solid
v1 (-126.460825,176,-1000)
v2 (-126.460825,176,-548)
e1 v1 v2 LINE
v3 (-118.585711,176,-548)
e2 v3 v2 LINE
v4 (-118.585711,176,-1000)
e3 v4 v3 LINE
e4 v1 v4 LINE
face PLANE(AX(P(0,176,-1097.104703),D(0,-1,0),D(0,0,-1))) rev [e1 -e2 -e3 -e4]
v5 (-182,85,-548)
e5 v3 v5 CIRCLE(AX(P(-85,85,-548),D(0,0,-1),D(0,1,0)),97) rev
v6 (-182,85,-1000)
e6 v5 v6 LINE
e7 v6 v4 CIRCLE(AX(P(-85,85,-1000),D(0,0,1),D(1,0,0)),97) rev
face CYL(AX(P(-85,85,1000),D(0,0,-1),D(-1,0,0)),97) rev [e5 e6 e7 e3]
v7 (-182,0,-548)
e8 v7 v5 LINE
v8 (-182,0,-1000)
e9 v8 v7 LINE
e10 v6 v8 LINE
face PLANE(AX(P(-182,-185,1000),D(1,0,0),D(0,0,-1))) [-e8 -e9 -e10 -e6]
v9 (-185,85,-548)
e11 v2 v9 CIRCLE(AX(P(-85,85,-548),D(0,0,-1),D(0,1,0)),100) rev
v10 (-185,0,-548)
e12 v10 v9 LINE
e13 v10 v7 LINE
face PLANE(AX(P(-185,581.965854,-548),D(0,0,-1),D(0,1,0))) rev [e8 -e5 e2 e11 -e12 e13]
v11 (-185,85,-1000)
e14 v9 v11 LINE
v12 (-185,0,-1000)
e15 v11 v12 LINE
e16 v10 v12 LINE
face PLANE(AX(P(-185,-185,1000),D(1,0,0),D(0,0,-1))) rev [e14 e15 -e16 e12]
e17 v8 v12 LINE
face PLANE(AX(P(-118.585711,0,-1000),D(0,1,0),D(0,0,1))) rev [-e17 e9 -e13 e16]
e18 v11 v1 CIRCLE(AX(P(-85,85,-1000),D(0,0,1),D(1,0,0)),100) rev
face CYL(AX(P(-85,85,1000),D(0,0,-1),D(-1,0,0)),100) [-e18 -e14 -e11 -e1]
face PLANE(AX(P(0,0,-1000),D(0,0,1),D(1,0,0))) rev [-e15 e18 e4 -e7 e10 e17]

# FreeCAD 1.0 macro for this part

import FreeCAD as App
import Part
import Sketcher
from FreeCAD import Vector
Q = App.Units.Quantity


def edges_at(feature, points):
    """Names of the edges that pass closest to the given points."""
    edges = feature.Shape.Edges
    near = lambda p: min(range(len(edges)), key=lambda i: edges[i].distToShape(Part.Vertex(*p))[0])
    return sorted({f"Edge{near(p) + 1}" for p in points})


def faces_at(feature, points):
    """Names of the faces that lie closest to the given points."""
    faces = feature.Shape.Faces
    near = lambda p: min(range(len(faces)), key=lambda i: faces[i].distToShape(Part.Vertex(*p))[0])
    return sorted({f"Face{near(p) + 1}" for p in points})


def add_polygon(sketch, points):
    """Adds a closed chain of lines whose ends are joined by coincident constraints."""
    first, n = sketch.GeometryCount, len(points)
    for a, b in zip(points, points[1:] + points[:1]):
        sketch.addGeometry(Part.LineSegment(App.Vector(*a, 0), App.Vector(*b, 0)), False)
    for i in range(n):
        sketch.addConstraint(Sketcher.Constraint("Coincident", first + i, 2, first + (i + 1) % n, 1))

doc = App.newDocument("Part")
params = doc.addObject("Spreadsheet::Sheet", "Params")
for row, (alias, value) in enumerate([
    ("sketch1_width", "370 mm"),
    ("pad1_length", "2000 mm"),
    ("fillet_radius", "100 mm"),
    ("thickness_wall", "3 mm"),
], start=1):
    params.set(f"A{row}", alias)
    params.set(f"B{row}", "=" + value)
    params.setAlias(f"B{row}", alias)

body = doc.addObject("PartDesign::Body", "Body")

# Sketch on XY plane
sketch1 = body.newObject("Sketcher::SketchObject", "Sketch")
sketch1.AttachmentSupport = (doc.getObject("XY_Plane"), [""])
sketch1.MapMode = "FlatFace"
add_polygon(sketch1, [(-185, 185), (-185, -185), (185, -185), (185, 185)])  # lines 0-3
sketch1.addConstraint(Sketcher.Constraint("Vertical", 0))
sketch1.addConstraint(Sketcher.Constraint("Horizontal", 1))
sketch1.addConstraint(Sketcher.Constraint("Vertical", 2))
sketch1.addConstraint(Sketcher.Constraint("Horizontal", 3))
sketch1.addConstraint(Sketcher.Constraint("Symmetric", 0, 2, 2, 2, -1, 1))
sketch1.addConstraint(Sketcher.Constraint("Equal", 3, 0))
sketch1.addConstraint(Sketcher.Constraint("DistanceX", 1, 1, 1, 2, Q("370 mm")))
sketch1.setExpression("Constraints[10]", "Params.sketch1_width")
pad1 = body.newObject("PartDesign::Pad", "Pad")
pad1.Profile = sketch1
pad1.setExpression("Length", "Params.pad1_length")
pad1.Midplane = True
doc.recompute()

fillet = body.newObject("PartDesign::Fillet", "Fillet")
fillet.Base = (pad1, edges_at(pad1, [
    (-185, 185, 0),
    (185, 185, 0),
    (185, -185, 0),
    (-185, -185, 0),
]))
fillet.setExpression("Radius", "Params.fillet_radius")
doc.recompute()

thickness = body.newObject("PartDesign::Thickness", "Thickness")
thickness.Base = (fillet, faces_at(fillet, [(0, 0, -1000)]))
thickness.setExpression("Value", "Params.thickness_wall")
thickness.Reversed = True
thickness.Join = "Intersection"

# Sketch on XY plane
sketch2 = body.newObject("Sketcher::SketchObject", "Sketch001")
sketch2.AttachmentSupport = (doc.getObject("XY_Plane"), [""])
sketch2.MapMode = "FlatFace"
sketch2.AttachmentOffset = App.Placement(Vector(0, 0, 1000), App.Rotation())
add_polygon(sketch2, [(0, 185), (0, -209.761155), (241.734798, -209.761155), (241.734798, 185)])  # lines 0-3
sketch2.addConstraint(Sketcher.Constraint("Vertical", 0))
sketch2.addConstraint(Sketcher.Constraint("Horizontal", 1))
sketch2.addConstraint(Sketcher.Constraint("Vertical", 2))
sketch2.addConstraint(Sketcher.Constraint("Horizontal", 3))
sketch2.addConstraint(Sketcher.Constraint("PointOnObject", 0, 2, -2))
sketch2.addConstraint(Sketcher.Constraint("DistanceY", -1, 1, 2, 2, Q("185 mm")))
sketch2.addConstraint(Sketcher.Constraint("DistanceX", 1, 1, 1, 2, Q("241.734798 mm")))
sketch2.addConstraint(Sketcher.Constraint("DistanceY", 0, 2, 0, 1, Q("394.761155 mm")))
pocket1 = body.newObject("PartDesign::Pocket", "Pocket")
pocket1.Profile = sketch2
pocket1.Type = "ThroughAll"

# Sketch on YZ plane
sketch3 = body.newObject("Sketcher::SketchObject", "Sketch002")
sketch3.AttachmentSupport = (doc.getObject("YZ_Plane"), [""])
sketch3.MapMode = "FlatFace"
sketch3.AttachmentOffset = App.Placement(Vector(0, 0, -182), App.Rotation())
add_polygon(sketch3, [(581.965854, 1348.128473), (-718.32039, 1348.128473), (-718.32039, -548), (581.965854, -548)])  # lines 0-3
sketch3.addConstraint(Sketcher.Constraint("Horizontal", 0))
sketch3.addConstraint(Sketcher.Constraint("Vertical", 1))
sketch3.addConstraint(Sketcher.Constraint("Horizontal", 2))
sketch3.addConstraint(Sketcher.Constraint("Vertical", 3))
sketch3.addConstraint(Sketcher.Constraint("DistanceY", 1, 2, -1, 1, Q("548 mm")))
sketch3.addConstraint(Sketcher.Constraint("DistanceX", 0, 2, 0, 1, Q("1300.286244 mm")))
sketch3.addConstraint(Sketcher.Constraint("DistanceY", 1, 2, 1, 1, Q("1896.128473 mm")))
sketch3.addConstraint(Sketcher.Constraint("DistanceX", 0, 2, -1, 1, Q("718.32039 mm")))
pocket2 = body.newObject("PartDesign::Pocket", "Pocket001")
pocket2.Profile = sketch3
pocket2.Type = "ThroughAll"
pocket2.Midplane = True

# Sketch on YZ plane
sketch4 = body.newObject("Sketcher::SketchObject", "Sketch003")
sketch4.AttachmentSupport = (doc.getObject("YZ_Plane"), [""])
sketch4.MapMode = "FlatFace"
sketch4.AttachmentOffset = App.Placement(Vector(0, 0, -185), App.Rotation())
add_polygon(sketch4, [(220.43204, -1097.104703), (176, -1097.104703), (176, -427.720074), (220.43204, -427.720074)])  # lines 0-3
add_polygon(sketch4, [(-176, -1097.104703), (-238.844567, -1097.104703), (-238.844567, -427.720074), (-176, -427.720074)])  # lines 4-7
sketch4.addConstraint(Sketcher.Constraint("Horizontal", 0))
sketch4.addConstraint(Sketcher.Constraint("Vertical", 1))
sketch4.addConstraint(Sketcher.Constraint("Horizontal", 2))
sketch4.addConstraint(Sketcher.Constraint("Vertical", 3))
sketch4.addConstraint(Sketcher.Constraint("Horizontal", 4))
sketch4.addConstraint(Sketcher.Constraint("Vertical", 5))
sketch4.addConstraint(Sketcher.Constraint("Horizontal", 6))
sketch4.addConstraint(Sketcher.Constraint("Vertical", 7))
sketch4.addConstraint(Sketcher.Constraint("Symmetric", 1, 2, 6, 2, -2))
sketch4.addConstraint(Sketcher.Constraint("Horizontal", 3, 2, 4, 2))
sketch4.addConstraint(Sketcher.Constraint("DistanceX", -1, 1, 0, 2, Q("176 mm")))
sketch4.addConstraint(Sketcher.Constraint("DistanceX", 0, 2, 0, 1, Q("44.43204 mm")))
sketch4.addConstraint(Sketcher.Constraint("DistanceY", 1, 1, 1, 2, Q("669.38463 mm")))
sketch4.addConstraint(Sketcher.Constraint("DistanceX", 4, 2, 4, 1, Q("62.844567 mm")))
sketch4.addConstraint(Sketcher.Constraint("DistanceY", 0, 2, -1, 1, Q("1097.104703 mm")))
pocket3 = body.newObject("PartDesign::Pocket", "Pocket002")
pocket3.Profile = sketch4
pocket3.Type = "ThroughAll"
pocket3.Reversed = True

# Sketch on YZ plane
sketch5 = body.newObject("Sketcher::SketchObject", "Sketch004")
sketch5.AttachmentSupport = (doc.getObject("YZ_Plane"), [""])
sketch5.MapMode = "FlatFace"
sketch5.AttachmentOffset = App.Placement(Vector(0, 0, -185), App.Rotation())
add_polygon(sketch5, [(0, -1000), (-206.247568, -1000), (-206.247568, -463.398893), (0, -463.398893)])  # lines 0-3
sketch5.addConstraint(Sketcher.Constraint("Horizontal", 0))
sketch5.addConstraint(Sketcher.Constraint("Vertical", 1))
sketch5.addConstraint(Sketcher.Constraint("Horizontal", 2))
sketch5.addConstraint(Sketcher.Constraint("Vertical", 3))
sketch5.addConstraint(Sketcher.Constraint("PointOnObject", 2, 2, -2))
sketch5.addConstraint(Sketcher.Constraint("DistanceY", 0, 2, -1, 1, Q("1000 mm")))
sketch5.addConstraint(Sketcher.Constraint("DistanceX", 0, 2, 0, 1, Q("206.247568 mm")))
sketch5.addConstraint(Sketcher.Constraint("DistanceY", 1, 1, 1, 2, Q("536.601107 mm")))
pocket4 = body.newObject("PartDesign::Pocket", "Pocket003")
pocket4.Profile = sketch5
pocket4.Type = "ThroughAll"
pocket4.Reversed = True

doc.recompute()
